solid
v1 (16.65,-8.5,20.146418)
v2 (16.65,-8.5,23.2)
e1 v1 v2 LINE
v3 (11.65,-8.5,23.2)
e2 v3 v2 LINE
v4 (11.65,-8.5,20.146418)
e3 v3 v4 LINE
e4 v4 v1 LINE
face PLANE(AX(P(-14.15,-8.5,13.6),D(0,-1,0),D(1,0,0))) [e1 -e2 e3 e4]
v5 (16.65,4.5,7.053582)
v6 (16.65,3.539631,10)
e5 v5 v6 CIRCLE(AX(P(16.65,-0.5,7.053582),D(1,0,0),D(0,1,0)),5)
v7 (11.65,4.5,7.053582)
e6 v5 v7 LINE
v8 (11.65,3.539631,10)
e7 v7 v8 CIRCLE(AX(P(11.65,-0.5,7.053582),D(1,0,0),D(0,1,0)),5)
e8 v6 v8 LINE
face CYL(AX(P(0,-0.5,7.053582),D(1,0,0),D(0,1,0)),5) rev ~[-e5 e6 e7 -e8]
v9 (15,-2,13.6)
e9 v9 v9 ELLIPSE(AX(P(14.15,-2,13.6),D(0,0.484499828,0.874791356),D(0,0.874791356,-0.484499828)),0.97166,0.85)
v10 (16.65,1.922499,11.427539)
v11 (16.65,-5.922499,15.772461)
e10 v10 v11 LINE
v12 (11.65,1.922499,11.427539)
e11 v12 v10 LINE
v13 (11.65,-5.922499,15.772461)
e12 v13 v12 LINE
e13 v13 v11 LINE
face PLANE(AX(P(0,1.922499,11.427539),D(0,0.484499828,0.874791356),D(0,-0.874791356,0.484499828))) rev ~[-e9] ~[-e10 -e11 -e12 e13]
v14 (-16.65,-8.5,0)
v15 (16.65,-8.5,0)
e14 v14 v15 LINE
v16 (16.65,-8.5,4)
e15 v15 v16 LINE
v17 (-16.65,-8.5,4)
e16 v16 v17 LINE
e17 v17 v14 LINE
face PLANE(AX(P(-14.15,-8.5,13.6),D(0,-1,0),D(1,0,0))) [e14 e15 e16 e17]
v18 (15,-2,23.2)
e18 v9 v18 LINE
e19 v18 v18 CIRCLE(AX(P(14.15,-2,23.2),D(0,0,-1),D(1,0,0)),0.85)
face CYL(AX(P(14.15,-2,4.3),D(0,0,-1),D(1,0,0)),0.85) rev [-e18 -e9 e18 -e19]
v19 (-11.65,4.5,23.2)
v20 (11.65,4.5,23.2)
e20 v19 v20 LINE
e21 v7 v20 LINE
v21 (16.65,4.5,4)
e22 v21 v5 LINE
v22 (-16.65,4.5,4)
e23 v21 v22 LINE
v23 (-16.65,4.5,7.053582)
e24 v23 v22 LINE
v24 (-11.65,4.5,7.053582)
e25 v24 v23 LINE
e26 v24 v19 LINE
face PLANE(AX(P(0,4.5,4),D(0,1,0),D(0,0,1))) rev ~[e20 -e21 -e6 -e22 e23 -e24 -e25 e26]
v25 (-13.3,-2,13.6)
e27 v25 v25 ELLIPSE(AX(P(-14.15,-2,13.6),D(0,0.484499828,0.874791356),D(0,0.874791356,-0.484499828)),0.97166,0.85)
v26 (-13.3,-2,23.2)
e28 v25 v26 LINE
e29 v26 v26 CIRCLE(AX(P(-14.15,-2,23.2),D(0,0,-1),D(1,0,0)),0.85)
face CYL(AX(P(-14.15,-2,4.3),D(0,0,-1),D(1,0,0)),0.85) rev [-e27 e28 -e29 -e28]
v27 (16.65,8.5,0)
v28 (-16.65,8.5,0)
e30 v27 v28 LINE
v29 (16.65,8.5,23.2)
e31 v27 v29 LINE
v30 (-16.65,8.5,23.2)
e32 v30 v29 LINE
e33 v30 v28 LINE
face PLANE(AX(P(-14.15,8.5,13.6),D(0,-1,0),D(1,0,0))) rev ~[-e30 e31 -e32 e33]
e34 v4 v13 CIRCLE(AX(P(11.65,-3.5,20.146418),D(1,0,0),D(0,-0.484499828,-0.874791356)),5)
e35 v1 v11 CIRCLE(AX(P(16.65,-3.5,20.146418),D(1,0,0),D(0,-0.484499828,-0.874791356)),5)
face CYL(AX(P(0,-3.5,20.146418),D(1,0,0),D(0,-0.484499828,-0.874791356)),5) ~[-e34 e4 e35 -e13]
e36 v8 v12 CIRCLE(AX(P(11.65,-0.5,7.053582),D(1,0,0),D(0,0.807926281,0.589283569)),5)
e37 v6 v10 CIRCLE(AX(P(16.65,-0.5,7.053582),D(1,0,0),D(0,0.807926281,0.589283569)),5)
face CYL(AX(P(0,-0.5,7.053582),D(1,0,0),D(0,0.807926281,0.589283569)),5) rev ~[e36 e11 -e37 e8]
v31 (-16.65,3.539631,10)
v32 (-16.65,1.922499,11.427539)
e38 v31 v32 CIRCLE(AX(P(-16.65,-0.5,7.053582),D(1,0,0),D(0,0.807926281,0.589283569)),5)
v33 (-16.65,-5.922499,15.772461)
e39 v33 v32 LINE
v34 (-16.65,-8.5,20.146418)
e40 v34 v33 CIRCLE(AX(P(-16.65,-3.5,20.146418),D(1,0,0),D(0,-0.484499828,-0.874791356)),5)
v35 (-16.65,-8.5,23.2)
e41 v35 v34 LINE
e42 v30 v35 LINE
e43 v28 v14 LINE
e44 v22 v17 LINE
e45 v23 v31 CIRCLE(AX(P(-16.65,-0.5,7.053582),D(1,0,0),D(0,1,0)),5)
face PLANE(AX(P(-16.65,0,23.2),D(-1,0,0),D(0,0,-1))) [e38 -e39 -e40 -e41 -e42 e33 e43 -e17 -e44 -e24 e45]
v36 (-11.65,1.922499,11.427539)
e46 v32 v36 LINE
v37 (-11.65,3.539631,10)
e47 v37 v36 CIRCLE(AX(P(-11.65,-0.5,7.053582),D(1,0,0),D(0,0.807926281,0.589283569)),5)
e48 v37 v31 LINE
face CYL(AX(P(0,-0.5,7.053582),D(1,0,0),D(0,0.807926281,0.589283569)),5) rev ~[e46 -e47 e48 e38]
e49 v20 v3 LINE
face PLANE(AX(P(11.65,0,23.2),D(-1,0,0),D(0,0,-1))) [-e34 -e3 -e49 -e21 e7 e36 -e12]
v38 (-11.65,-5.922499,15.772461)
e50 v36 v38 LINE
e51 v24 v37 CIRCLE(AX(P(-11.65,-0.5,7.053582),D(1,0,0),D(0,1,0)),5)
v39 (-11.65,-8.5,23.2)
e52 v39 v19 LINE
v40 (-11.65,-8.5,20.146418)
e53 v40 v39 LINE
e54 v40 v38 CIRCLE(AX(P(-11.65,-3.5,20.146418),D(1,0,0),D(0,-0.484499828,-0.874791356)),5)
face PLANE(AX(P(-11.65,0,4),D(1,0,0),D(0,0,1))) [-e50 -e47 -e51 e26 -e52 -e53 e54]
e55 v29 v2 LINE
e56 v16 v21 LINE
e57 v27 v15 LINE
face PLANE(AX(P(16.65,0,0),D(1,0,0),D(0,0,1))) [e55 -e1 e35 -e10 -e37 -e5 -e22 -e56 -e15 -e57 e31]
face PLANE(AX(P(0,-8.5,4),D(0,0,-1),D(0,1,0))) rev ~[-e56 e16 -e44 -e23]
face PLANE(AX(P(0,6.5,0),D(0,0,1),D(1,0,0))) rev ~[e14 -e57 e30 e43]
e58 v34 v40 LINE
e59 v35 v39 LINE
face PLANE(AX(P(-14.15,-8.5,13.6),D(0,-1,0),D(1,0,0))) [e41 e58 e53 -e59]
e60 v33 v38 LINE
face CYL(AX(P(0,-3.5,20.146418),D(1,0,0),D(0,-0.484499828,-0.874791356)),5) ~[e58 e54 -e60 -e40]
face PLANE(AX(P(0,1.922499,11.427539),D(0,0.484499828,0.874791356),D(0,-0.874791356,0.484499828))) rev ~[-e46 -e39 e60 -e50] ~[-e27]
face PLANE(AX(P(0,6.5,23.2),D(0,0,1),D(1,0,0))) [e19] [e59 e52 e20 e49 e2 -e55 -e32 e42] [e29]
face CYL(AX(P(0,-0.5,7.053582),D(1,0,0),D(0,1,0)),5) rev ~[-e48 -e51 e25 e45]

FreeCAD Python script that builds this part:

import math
import FreeCAD as App
import Part
import Sketcher
Q = App.Units.Quantity

doc = App.newDocument("Part")
body = doc.addObject("PartDesign::Body", "Body")

# Sketch on XZ plane
sketch1 = body.newObject("Sketcher::SketchObject", "Sketch")
sketch1.AttachmentSupport = (doc.getObject("XZ_Plane"), [""])
sketch1.MapMode = "FlatFace"
sketch1.addGeometry(Part.LineSegment(App.Vector(-11.7, 23.2, 0), App.Vector(-16.6, 23.2, 0)), False)
sketch1.addGeometry(Part.LineSegment(App.Vector(-16.6, 23.2, 0), App.Vector(-16.6, 0, 0)), False)
sketch1.addGeometry(Part.LineSegment(App.Vector(-16.6, 0, 0), App.Vector(16.6, 0, 0)), False)
sketch1.addGeometry(Part.LineSegment(App.Vector(16.6, 0, 0), App.Vector(16.6, 23.2, 0)), False)
sketch1.addGeometry(Part.LineSegment(App.Vector(16.6, 23.2, 0), App.Vector(11.7, 23.2, 0)), False)
sketch1.addGeometry(Part.LineSegment(App.Vector(11.7, 23.2, 0), App.Vector(11.7, 4, 0)), False)
sketch1.addGeometry(Part.LineSegment(App.Vector(11.7, 4, 0), App.Vector(-11.7, 4, 0)), False)
sketch1.addGeometry(Part.LineSegment(App.Vector(-11.7, 4, 0), App.Vector(-11.7, 23.2, 0)), False)
sketch1.addConstraint(Sketcher.Constraint("Coincident", 0, 2, 1, 1))
sketch1.addConstraint(Sketcher.Constraint("Coincident", 1, 2, 2, 1))
sketch1.addConstraint(Sketcher.Constraint("Coincident", 2, 2, 3, 1))
sketch1.addConstraint(Sketcher.Constraint("Coincident", 3, 2, 4, 1))
sketch1.addConstraint(Sketcher.Constraint("Coincident", 4, 2, 5, 1))
sketch1.addConstraint(Sketcher.Constraint("Coincident", 5, 2, 6, 1))
sketch1.addConstraint(Sketcher.Constraint("Coincident", 6, 2, 7, 1))
sketch1.addConstraint(Sketcher.Constraint("Coincident", 7, 2, 0, 1))
sketch1.addConstraint(Sketcher.Constraint("Horizontal", 0))
sketch1.addConstraint(Sketcher.Constraint("Vertical", 1))
sketch1.addConstraint(Sketcher.Constraint("Horizontal", 2))
sketch1.addConstraint(Sketcher.Constraint("Vertical", 3))
sketch1.addConstraint(Sketcher.Constraint("Horizontal", 4))
sketch1.addConstraint(Sketcher.Constraint("Vertical", 5))
sketch1.addConstraint(Sketcher.Constraint("Horizontal", 6))
sketch1.addConstraint(Sketcher.Constraint("Vertical", 7))
sketch1.addConstraint(Sketcher.Constraint("Symmetric", 1, 2, 2, 2, -1, 1))
sketch1.addConstraint(Sketcher.Constraint("Symmetric", 4, 2, 7, 2, -2))
sketch1.addConstraint(Sketcher.Constraint("DistanceX", 0, 2, 0, 1, Q("5 mm")))
sketch1.addConstraint(Sketcher.Constraint("DistanceX", 2, 1, 2, 2, Q("33.3 mm")))
sketch1.addConstraint(Sketcher.Constraint("DistanceY", 1, 2, 1, 1, Q("23.2 mm")))
sketch1.addConstraint(Sketcher.Constraint("DistanceY", 5, 2, 5, 1, Q("19.2 mm")))
pad1 = body.newObject("PartDesign::Pad", "Pad")
pad1.Profile = sketch1
pad1.Length = 17
pad1.Midplane = True

# Sketch on XY plane
sketch2 = body.newObject("Sketcher::SketchObject", "Sketch001")
sketch2.AttachmentSupport = (doc.getObject("XY_Plane"), [""])
sketch2.MapMode = "FlatFace"
sketch2.addGeometry(Part.LineSegment(App.Vector(-11.7, 8.5, 0), App.Vector(-11.7, 4.5, 0)), False)
sketch2.addGeometry(Part.LineSegment(App.Vector(-11.7, 4.5, 0), App.Vector(11.7, 4.5, 0)), False)
sketch2.addGeometry(Part.LineSegment(App.Vector(11.7, 4.5, 0), App.Vector(11.7, 8.5, 0)), False)
sketch2.addGeometry(Part.LineSegment(App.Vector(11.7, 8.5, 0), App.Vector(-11.7, 8.5, 0)), False)
sketch2.addConstraint(Sketcher.Constraint("Coincident", 0, 2, 1, 1))
sketch2.addConstraint(Sketcher.Constraint("Coincident", 1, 2, 2, 1))
sketch2.addConstraint(Sketcher.Constraint("Coincident", 2, 2, 3, 1))
sketch2.addConstraint(Sketcher.Constraint("Coincident", 3, 2, 0, 1))
sketch2.addConstraint(Sketcher.Constraint("Vertical", 0))
sketch2.addConstraint(Sketcher.Constraint("Horizontal", 1))
sketch2.addConstraint(Sketcher.Constraint("Vertical", 2))
sketch2.addConstraint(Sketcher.Constraint("Horizontal", 3))
sketch2.addConstraint(Sketcher.Constraint("DistanceY", 0, 2, 0, 1, Q("4 mm")))
sketch2.addConstraint(Sketcher.Constraint("DistanceX", 1, 1, 1, 2, Q("23.3 mm")))
sketch2.addConstraint(Sketcher.Constraint("DistanceY", -1, 1, 0, 2, Q("4.5 mm")))
sketch2.addConstraint(Sketcher.Constraint("DistanceX", 0, 2, -1, 1, Q("11.65 mm")))
pad2 = body.newObject("PartDesign::Pad", "Pad001")
pad2.Profile = sketch2
pad2.Length = 23.2

# Sketch on YZ plane
sketch3 = body.newObject("Sketcher::SketchObject", "Sketch002")
sketch3.AttachmentSupport = (doc.getObject("YZ_Plane"), [""])
sketch3.MapMode = "FlatFace"
sketch3.addGeometry(Part.ArcOfCircle(Part.Circle(App.Vector(-0.5, 7.1, 0), App.Vector(0, 0, 1), 5), math.radians(36), math.radians(61)), False)
sketch3.addGeometry(Part.LineSegment(App.Vector(1.9, 11.4, 0), App.Vector(-5.9, 15.8, 0)), False)
sketch3.addGeometry(Part.ArcOfCircle(Part.Circle(App.Vector(-3.5, 20.1, 0), App.Vector(0, 0, 1), 5), math.radians(-144), math.radians(-119)), False)
sketch3.addGeometry(Part.ArcOfCircle(Part.Circle(App.Vector(-3.5, 20.1, 0), App.Vector(0, 0, 1), 5), math.radians(180), math.radians(216)), False)
sketch3.addGeometry(Part.LineSegment(App.Vector(-8.5, 20.1, 0), App.Vector(-8.5, 4, 0)), False)
sketch3.addGeometry(Part.LineSegment(App.Vector(-8.5, 4, 0), App.Vector(4.5, 4, 0)), False)
sketch3.addGeometry(Part.LineSegment(App.Vector(4.5, 4, 0), App.Vector(4.5, 7.1, 0)), False)
sketch3.addGeometry(Part.ArcOfCircle(Part.Circle(App.Vector(-0.5, 7.1, 0), App.Vector(0, 0, 1), 5), math.radians(0), math.radians(36)), False)
sketch3.addConstraint(Sketcher.Constraint("Tangent", 0, 2, 1, 1))
sketch3.addConstraint(Sketcher.Constraint("Tangent", 1, 2, 2, 2))
sketch3.addConstraint(Sketcher.Constraint("Tangent", 2, 1, 3, 2))
sketch3.addConstraint(Sketcher.Constraint("Tangent", 3, 1, 4, 1))
sketch3.addConstraint(Sketcher.Constraint("Coincident", 4, 2, 5, 1))
sketch3.addConstraint(Sketcher.Constraint("Coincident", 5, 2, 6, 1))
sketch3.addConstraint(Sketcher.Constraint("Tangent", 6, 2, 7, 1))
sketch3.addConstraint(Sketcher.Constraint("Tangent", 7, 2, 0, 1))
sketch3.addConstraint(Sketcher.Constraint("Vertical", 4))
sketch3.addConstraint(Sketcher.Constraint("Horizontal", 5))
sketch3.addConstraint(Sketcher.Constraint("Vertical", 6))
sketch3.addConstraint(Sketcher.Constraint("Equal", 0, 2))
sketch3.addConstraint(Sketcher.Constraint("Equal", 2, 3))
sketch3.addConstraint(Sketcher.Constraint("Equal", 3, 7))
sketch3.addConstraint(Sketcher.Constraint("Radius", 0, Q("5 mm")))
sketch3.addConstraint(Sketcher.Constraint("DistanceX", 5, 1, 5, 2, Q("13 mm")))
sketch3.addConstraint(Sketcher.Constraint("DistanceY", -1, 1, 4, 2, Q("4 mm")))
sketch3.addConstraint(Sketcher.Constraint("DistanceY", -1, 1, 7, 2, Q("10 mm")))
sketch3.addConstraint(Sketcher.Constraint("DistanceX", 0, 3, -1, 1, Q("0.5 mm")))
sketch3.addConstraint(Sketcher.Constraint("DistanceY", -1, 1, 2, 1, Q("17.2 mm")))
sketch3.addConstraint(Sketcher.Constraint("DistanceX", 1, 2, 0, 2, Q("7.844998 mm")))
sketch3.addConstraint(Sketcher.Constraint("DistanceY", 4, 2, 4, 1, Q("16.146418 mm")))
pocket1 = body.newObject("PartDesign::Pocket", "Pocket")
pocket1.Profile = sketch3
pocket1.Length = 36.2
pocket1.Midplane = True

# Sketch on XY plane
sketch4 = body.newObject("Sketcher::SketchObject", "Sketch003")
sketch4.AttachmentSupport = (doc.getObject("XY_Plane"), [""])
sketch4.MapMode = "FlatFace"
sketch4.AttachmentOffset = App.Placement(App.Vector(0, 0, 4.3), App.Rotation())
sketch4.addGeometry(Part.Circle(App.Vector(14.2, -2, 0), App.Vector(0, 0, 1), 0.8), False)
sketch4.addGeometry(Part.Circle(App.Vector(-14.2, -2, 0), App.Vector(0, 0, 1), 0.8), False)
sketch4.addConstraint(Sketcher.Constraint("Equal", 0, 1))
sketch4.addConstraint(Sketcher.Constraint("Symmetric", 0, 3, 1, 3, -2))
sketch4.addConstraint(Sketcher.Constraint("Diameter", 0, Q("1.7 mm")))
sketch4.addConstraint(Sketcher.Constraint("DistanceY", 0, 3, -1, 1, Q("2 mm")))
sketch4.addConstraint(Sketcher.Constraint("DistanceX", 1, 3, 0, 3, Q("28.3 mm")))
pocket2 = body.newObject("PartDesign::Pocket", "Pocket001")
pocket2.Profile = sketch4
pocket2.Length = 20.7
pocket2.Reversed = True

doc.recompute()
